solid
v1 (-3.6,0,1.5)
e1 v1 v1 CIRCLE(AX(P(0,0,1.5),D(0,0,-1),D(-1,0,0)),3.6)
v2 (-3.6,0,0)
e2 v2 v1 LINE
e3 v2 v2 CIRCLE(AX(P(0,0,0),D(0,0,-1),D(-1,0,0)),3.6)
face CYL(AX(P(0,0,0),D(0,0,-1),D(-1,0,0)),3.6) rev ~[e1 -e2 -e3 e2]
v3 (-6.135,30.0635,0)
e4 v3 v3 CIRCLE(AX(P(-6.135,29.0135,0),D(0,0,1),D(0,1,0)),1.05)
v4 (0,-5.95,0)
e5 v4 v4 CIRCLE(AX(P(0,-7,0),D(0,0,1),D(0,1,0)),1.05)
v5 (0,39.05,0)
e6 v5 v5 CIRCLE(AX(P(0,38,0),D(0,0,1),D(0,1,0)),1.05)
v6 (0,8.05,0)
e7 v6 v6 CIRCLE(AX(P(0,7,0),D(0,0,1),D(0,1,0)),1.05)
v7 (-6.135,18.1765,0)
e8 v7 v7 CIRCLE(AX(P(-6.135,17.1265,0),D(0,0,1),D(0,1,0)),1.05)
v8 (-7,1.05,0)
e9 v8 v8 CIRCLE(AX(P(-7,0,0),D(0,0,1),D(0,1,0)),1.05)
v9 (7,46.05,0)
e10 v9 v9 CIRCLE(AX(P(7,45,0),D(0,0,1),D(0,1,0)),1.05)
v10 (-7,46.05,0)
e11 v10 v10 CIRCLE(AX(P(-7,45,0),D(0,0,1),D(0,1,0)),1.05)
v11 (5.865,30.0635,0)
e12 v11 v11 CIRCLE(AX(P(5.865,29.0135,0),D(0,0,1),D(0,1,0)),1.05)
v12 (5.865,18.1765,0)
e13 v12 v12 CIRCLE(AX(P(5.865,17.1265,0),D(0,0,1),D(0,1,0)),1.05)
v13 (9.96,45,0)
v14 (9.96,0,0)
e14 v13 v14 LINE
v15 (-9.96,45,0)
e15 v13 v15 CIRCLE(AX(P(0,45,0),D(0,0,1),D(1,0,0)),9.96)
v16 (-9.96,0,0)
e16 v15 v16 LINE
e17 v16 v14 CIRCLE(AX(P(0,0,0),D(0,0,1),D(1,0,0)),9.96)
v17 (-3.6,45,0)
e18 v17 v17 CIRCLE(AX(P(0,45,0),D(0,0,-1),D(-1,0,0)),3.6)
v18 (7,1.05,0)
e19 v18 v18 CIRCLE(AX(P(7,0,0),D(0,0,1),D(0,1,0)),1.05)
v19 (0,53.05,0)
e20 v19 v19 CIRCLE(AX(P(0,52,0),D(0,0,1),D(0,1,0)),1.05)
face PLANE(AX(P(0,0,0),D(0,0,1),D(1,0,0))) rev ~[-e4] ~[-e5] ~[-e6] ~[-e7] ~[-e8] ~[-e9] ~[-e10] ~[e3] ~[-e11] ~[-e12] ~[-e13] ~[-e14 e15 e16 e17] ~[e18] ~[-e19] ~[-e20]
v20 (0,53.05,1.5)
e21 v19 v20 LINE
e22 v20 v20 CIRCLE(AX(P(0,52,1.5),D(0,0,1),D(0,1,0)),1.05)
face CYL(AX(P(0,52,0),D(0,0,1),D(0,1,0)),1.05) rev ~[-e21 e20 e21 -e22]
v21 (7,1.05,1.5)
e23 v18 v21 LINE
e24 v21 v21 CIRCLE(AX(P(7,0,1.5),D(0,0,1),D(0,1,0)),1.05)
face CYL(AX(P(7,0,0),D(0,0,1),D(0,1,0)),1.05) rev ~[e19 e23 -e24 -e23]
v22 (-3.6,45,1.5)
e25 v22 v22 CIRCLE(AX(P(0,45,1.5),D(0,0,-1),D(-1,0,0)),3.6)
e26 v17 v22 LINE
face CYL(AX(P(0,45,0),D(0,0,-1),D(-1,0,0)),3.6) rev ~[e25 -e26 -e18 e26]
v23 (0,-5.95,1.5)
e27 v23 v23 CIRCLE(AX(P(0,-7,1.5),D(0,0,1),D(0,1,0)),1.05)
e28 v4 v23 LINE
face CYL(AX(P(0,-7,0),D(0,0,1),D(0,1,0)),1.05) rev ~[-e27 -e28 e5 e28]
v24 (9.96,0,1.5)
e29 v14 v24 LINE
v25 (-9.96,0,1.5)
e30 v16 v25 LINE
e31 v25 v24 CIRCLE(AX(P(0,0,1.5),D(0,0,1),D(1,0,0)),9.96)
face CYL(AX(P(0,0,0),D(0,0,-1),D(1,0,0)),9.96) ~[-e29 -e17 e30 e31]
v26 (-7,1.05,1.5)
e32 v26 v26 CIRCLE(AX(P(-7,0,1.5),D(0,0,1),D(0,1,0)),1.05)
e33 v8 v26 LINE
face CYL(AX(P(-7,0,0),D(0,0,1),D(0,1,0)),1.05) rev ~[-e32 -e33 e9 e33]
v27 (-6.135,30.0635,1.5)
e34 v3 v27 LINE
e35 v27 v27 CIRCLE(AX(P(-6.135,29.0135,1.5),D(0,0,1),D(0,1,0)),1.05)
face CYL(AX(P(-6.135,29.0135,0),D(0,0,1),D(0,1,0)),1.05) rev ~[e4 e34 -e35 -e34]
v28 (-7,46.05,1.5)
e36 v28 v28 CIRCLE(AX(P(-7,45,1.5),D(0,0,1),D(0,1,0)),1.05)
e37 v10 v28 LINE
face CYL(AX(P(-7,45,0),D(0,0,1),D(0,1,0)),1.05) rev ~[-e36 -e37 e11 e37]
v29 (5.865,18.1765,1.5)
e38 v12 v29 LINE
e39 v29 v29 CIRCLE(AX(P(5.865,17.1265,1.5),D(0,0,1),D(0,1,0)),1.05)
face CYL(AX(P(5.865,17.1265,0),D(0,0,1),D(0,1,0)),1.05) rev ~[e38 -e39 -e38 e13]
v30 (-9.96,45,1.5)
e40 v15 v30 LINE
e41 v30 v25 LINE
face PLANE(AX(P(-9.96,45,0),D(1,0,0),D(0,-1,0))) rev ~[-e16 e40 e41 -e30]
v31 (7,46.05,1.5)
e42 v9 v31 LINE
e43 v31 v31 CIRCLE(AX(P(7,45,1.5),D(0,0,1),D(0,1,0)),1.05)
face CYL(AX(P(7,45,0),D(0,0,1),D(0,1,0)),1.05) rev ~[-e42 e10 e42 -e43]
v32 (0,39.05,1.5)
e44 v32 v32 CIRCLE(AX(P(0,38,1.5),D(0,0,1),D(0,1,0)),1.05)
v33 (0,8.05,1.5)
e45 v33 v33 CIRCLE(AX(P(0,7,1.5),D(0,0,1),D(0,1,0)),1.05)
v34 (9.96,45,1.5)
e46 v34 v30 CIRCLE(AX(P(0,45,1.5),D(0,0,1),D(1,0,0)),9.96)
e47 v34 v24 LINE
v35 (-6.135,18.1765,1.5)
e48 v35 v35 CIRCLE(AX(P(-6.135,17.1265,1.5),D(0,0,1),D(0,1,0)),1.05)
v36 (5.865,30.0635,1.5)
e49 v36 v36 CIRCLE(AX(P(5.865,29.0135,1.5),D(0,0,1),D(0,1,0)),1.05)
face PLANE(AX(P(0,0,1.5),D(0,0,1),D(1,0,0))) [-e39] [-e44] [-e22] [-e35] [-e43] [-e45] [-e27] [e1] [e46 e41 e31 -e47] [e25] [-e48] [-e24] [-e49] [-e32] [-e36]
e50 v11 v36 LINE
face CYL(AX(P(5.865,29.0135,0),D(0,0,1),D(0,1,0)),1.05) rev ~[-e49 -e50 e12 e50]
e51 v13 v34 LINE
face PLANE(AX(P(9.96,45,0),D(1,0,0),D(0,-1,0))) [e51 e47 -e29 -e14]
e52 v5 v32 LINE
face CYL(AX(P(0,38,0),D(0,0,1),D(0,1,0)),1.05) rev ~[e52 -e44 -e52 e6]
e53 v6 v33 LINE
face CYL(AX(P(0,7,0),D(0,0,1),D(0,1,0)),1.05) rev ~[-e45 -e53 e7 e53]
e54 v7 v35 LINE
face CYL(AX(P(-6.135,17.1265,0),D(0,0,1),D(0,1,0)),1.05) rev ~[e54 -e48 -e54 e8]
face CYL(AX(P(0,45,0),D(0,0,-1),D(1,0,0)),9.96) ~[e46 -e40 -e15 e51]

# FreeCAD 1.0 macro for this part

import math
import FreeCAD as App
import Part
import Sketcher
from FreeCAD import Vector

doc = App.newDocument("Part")
body = doc.addObject("PartDesign::Body", "Body")

# Sketch on XY plane
sketch1 = doc.addObject("Sketcher::SketchObject", "Sketch")
body.addObject(sketch1)
sketch1.AttachmentSupport = (doc.XY_Plane, [""])
sketch1.MapMode = "FlatFace"
sketch1.addGeometry(Part.ArcOfCircle(Part.Circle(Vector(0, 0, 0), Vector(0, 0, 1), 10), math.radians(180), math.radians(360)), False)
sketch1.addGeometry(Part.LineSegment(Vector(10, 0, 0), Vector(10, 45, 0)), False)
sketch1.addGeometry(Part.ArcOfCircle(Part.Circle(Vector(0, 45, 0), Vector(0, 0, 1), 10), math.radians(0), math.radians(180)), False)
sketch1.addGeometry(Part.LineSegment(Vector(-10, 45, 0), Vector(-10, 0, 0)), False)
sketch1.addConstraint(Sketcher.Constraint("Tangent", 0, 2, 1, 1))
sketch1.addConstraint(Sketcher.Constraint("Tangent", 1, 2, 2, 1))
sketch1.addConstraint(Sketcher.Constraint("Tangent", 2, 2, 3, 1))
sketch1.addConstraint(Sketcher.Constraint("Tangent", 3, 2, 0, 1))
sketch1.addConstraint(Sketcher.Constraint("Vertical", 1))
sketch1.addConstraint(Sketcher.Constraint("Vertical", 3))
sketch1.addConstraint(Sketcher.Constraint("Coincident", 0, 3, -1, 1))
sketch1.addConstraint(Sketcher.Constraint("DistanceY", 1, 1, 1, 2, 45.0))
sketch1.addConstraint(Sketcher.Constraint("Radius", 0, 9.96))
pad1 = doc.addObject("PartDesign::Pad", "Pad")
body.addObject(pad1)
pad1.Profile = sketch1
pad1.Length = 1.5

# Sketch on XY plane
sketch2 = doc.addObject("Sketcher::SketchObject", "Sketch001")
body.addObject(sketch2)
sketch2.AttachmentSupport = (doc.XY_Plane, [""])
sketch2.MapMode = "FlatFace"
sketch2.addGeometry(Part.Circle(Vector(0, 52, 0), Vector(0, 0, 1), 1.1), False)
sketch2.addGeometry(Part.Circle(Vector(-7, 45, 0), Vector(0, 0, 1), 1.1), False)
sketch2.addGeometry(Part.Circle(Vector(0, 38, 0), Vector(0, 0, 1), 1.1), False)
sketch2.addGeometry(Part.Circle(Vector(7, 45, 0), Vector(0, 0, 1), 1.1), False)
sketch2.addGeometry(Part.Circle(Vector(0, 7, 0), Vector(0, 0, 1), 1.1), False)
sketch2.addGeometry(Part.Circle(Vector(-7, 0, 0), Vector(0, 0, 1), 1.1), False)
sketch2.addGeometry(Part.Circle(Vector(0, -7, 0), Vector(0, 0, 1), 1.1), False)
sketch2.addGeometry(Part.Circle(Vector(7, 0, 0), Vector(0, 0, 1), 1.1), False)
sketch2.addConstraint(Sketcher.Constraint("Equal", 0, 1))
sketch2.addConstraint(Sketcher.Constraint("Equal", 1, 2))
sketch2.addConstraint(Sketcher.Constraint("Equal", 2, 3))
sketch2.addConstraint(Sketcher.Constraint("Equal", 3, 4))
sketch2.addConstraint(Sketcher.Constraint("Equal", 4, 5))
sketch2.addConstraint(Sketcher.Constraint("Equal", 5, 6))
sketch2.addConstraint(Sketcher.Constraint("Equal", 6, 7))
sketch2.addConstraint(Sketcher.Constraint("Symmetric", 4, 3, 6, 3, -1, 1))
sketch2.addConstraint(Sketcher.Constraint("Symmetric", 5, 3, 7, 3, -1, 1))
sketch2.addConstraint(Sketcher.Constraint("Symmetric", 1, 3, 3, 3, -2))
sketch2.addConstraint(Sketcher.Constraint("PointOnObject", 0, 3, -2))
sketch2.addConstraint(Sketcher.Constraint("PointOnObject", 2, 3, -2))
sketch2.addConstraint(Sketcher.Constraint("PointOnObject", 4, 3, -2))
sketch2.addConstraint(Sketcher.Constraint("PointOnObject", 5, 3, -1))
sketch2.addConstraint(Sketcher.Constraint("Vertical", 1, 3, 5, 3))
sketch2.addConstraint(Sketcher.Constraint("Diameter", 0, 2.1))
sketch2.addConstraint(Sketcher.Constraint("DistanceY", -1, 1, 0, 3, 52.0))
sketch2.addConstraint(Sketcher.Constraint("DistanceX", 1, 3, -1, 1, 7.0))
sketch2.addConstraint(Sketcher.Constraint("DistanceY", -1, 1, 1, 3, 45.0))
sketch2.addConstraint(Sketcher.Constraint("DistanceY", -1, 1, 2, 3, 38.0))
sketch2.addConstraint(Sketcher.Constraint("DistanceY", -1, 1, 4, 3, 7.0))
doc.recompute()
hole = doc.addObject("PartDesign::Hole", "Hole")
body.addObject(hole)
hole.Profile = sketch2
hole.ThreadType = "None"
hole.Diameter = 2.1
hole.DepthType = "ThroughAll"
hole.Reversed = True

# Sketch on XY plane
sketch3 = doc.addObject("Sketcher::SketchObject", "Sketch002")
body.addObject(sketch3)
sketch3.AttachmentSupport = (doc.XY_Plane, [""])
sketch3.MapMode = "FlatFace"
sketch3.addGeometry(Part.Circle(Vector(0, 0, 0), Vector(0, 0, 1), 3.6), False)
sketch3.addGeometry(Part.Circle(Vector(0, 45, 0), Vector(0, 0, 1), 3.6), False)
sketch3.addConstraint(Sketcher.Constraint("Coincident", 0, 3, -1, 1))
sketch3.addConstraint(Sketcher.Constraint("Equal", 0, 1))
sketch3.addConstraint(Sketcher.Constraint("PointOnObject", 1, 3, -2))
sketch3.addConstraint(Sketcher.Constraint("Diameter", 0, 7.2))
sketch3.addConstraint(Sketcher.Constraint("DistanceY", -1, 1, 1, 3, 45.0))
pocket1 = doc.addObject("PartDesign::Pocket", "Pocket")
body.addObject(pocket1)
pocket1.Profile = sketch3
pocket1.Type = "ThroughAll"
pocket1.Reversed = True

# Sketch on XY plane
sketch4 = doc.addObject("Sketcher::SketchObject", "Sketch003")
body.addObject(sketch4)
sketch4.AttachmentSupport = (doc.XY_Plane, [""])
sketch4.MapMode = "FlatFace"
sketch4.addGeometry(Part.Circle(Vector(5.9, 29, 0), Vector(0, 0, 1), 1.1), False)
sketch4.addGeometry(Part.Circle(Vector(5.9, 17.1, 0), Vector(0, 0, 1), 1.1), False)
sketch4.addGeometry(Part.Circle(Vector(-6.1, 17.1, 0), Vector(0, 0, 1), 1.1), False)
sketch4.addGeometry(Part.Circle(Vector(-6.1, 29, 0), Vector(0, 0, 1), 1.1), False)
sketch4.addConstraint(Sketcher.Constraint("Equal", 0, 1))
sketch4.addConstraint(Sketcher.Constraint("Equal", 1, 2))
sketch4.addConstraint(Sketcher.Constraint("Equal", 2, 3))
sketch4.addConstraint(Sketcher.Constraint("Horizontal", 1, 3, 2, 3))
sketch4.addConstraint(Sketcher.Constraint("Horizontal", 0, 3, 3, 3))
sketch4.addConstraint(Sketcher.Constraint("Vertical", 0, 3, 1, 3))
sketch4.addConstraint(Sketcher.Constraint("Vertical", 2, 3, 3, 3))
sketch4.addConstraint(Sketcher.Constraint("Diameter", 0, 2.1))
sketch4.addConstraint(Sketcher.Constraint("DistanceX", 2, 3, 1, 3, 12.0))
sketch4.addConstraint(Sketcher.Constraint("DistanceX", -1, 1, 0, 3, 5.865))
sketch4.addConstraint(Sketcher.Constraint("DistanceY", 1, 3, 0, 3, 11.887))
sketch4.addConstraint(Sketcher.Constraint("DistanceY", -1, 1, 0, 3, 29.0135))
doc.recompute()
hole2 = doc.addObject("PartDesign::Hole", "Hole001")
body.addObject(hole2)
hole2.Profile = sketch4
hole2.ThreadType = "None"
hole2.Diameter = 2.1
hole2.DepthType = "ThroughAll"
hole2.Reversed = True

doc.recompute()
